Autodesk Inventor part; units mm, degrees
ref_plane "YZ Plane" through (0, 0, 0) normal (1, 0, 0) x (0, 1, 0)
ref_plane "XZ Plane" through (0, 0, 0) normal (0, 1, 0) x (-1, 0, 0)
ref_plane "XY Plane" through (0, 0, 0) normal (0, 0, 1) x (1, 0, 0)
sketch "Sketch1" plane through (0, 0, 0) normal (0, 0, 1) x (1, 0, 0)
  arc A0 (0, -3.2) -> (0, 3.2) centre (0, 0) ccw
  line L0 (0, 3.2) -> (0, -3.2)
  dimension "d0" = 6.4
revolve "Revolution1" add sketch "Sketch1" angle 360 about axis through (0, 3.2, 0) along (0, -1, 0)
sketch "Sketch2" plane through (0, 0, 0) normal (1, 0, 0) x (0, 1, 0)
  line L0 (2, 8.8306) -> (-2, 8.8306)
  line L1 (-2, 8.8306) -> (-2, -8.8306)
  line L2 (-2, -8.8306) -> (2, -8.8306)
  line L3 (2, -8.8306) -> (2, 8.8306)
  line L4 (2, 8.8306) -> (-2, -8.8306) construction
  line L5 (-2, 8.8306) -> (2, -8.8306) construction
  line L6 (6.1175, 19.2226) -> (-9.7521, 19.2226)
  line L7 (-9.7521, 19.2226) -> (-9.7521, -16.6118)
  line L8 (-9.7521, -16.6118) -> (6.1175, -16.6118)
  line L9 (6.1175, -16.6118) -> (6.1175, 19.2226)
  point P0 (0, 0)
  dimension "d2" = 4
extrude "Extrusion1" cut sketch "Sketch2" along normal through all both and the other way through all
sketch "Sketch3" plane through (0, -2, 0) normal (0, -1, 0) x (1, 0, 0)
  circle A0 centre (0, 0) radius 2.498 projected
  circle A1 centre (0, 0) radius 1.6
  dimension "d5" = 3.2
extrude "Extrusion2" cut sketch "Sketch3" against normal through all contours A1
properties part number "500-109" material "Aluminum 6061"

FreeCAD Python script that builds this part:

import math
import FreeCAD as App
import Part
import Sketcher
from FreeCAD import Vector

doc = App.newDocument("Part")
body = doc.addObject("PartDesign::Body", "Body")

sketch1 = body.newObject("Sketcher::SketchObject", "Sketch")
sketch1.AttachmentSupport = (doc.getObject("XY_Plane"), [""])
sketch1.MapMode = "FlatFace"
sketch1.addGeometry([
    Part.LineSegment(Vector(0, 3.2, 0), Vector(0, -3.2, 0)),
    Part.ArcOfCircle(Part.Circle(Vector(0, 0, 0), Vector(0, 0, 1), 3.2), math.radians(-90), math.radians(90)),
], False)
sketch1.addConstraint([
    Sketcher.Constraint("Coincident", 0, 1, 1, 2),
    Sketcher.Constraint("Coincident", 1, 1, 0, 2),
    Sketcher.Constraint("Vertical", 0),
    Sketcher.Constraint("Coincident", 1, 3, -1, 1),
    Sketcher.Constraint("PointOnObject", 0, 1, -2),
    Sketcher.Constraint("Radius", 1, 3.2),
])
revolution = body.newObject("PartDesign::Revolution", "Revolution")
revolution.Profile = sketch1
revolution.ReferenceAxis = (sketch1, ["V_Axis"])
revolution.Angle = 360

sketch2 = body.newObject("Sketcher::SketchObject", "Sketch001")
sketch2.AttachmentSupport = (doc.getObject("YZ_Plane"), [""])
sketch2.MapMode = "FlatFace"
sketch2.addGeometry([
    Part.LineSegment(Vector(6.1175, -16.6118, 0), Vector(6.1175, 19.2226, 0)),
    Part.LineSegment(Vector(6.1175, 19.2226, 0), Vector(-9.7521, 19.2226, 0)),
    Part.LineSegment(Vector(-9.7521, 19.2226, 0), Vector(-9.7521, -16.6118, 0)),
    Part.LineSegment(Vector(-9.7521, -16.6118, 0), Vector(6.1175, -16.6118, 0)),
    Part.LineSegment(Vector(-2, 8.8306, 0), Vector(2, 8.8306, 0)),
    Part.LineSegment(Vector(2, 8.8306, 0), Vector(2, -8.8306, 0)),
    Part.LineSegment(Vector(2, -8.8306, 0), Vector(-2, -8.8306, 0)),
    Part.LineSegment(Vector(-2, -8.8306, 0), Vector(-2, 8.8306, 0)),
], False)
sketch2.addConstraint([
    Sketcher.Constraint("Coincident", 0, 2, 1, 1),
    Sketcher.Constraint("Coincident", 1, 2, 2, 1),
    Sketcher.Constraint("Coincident", 2, 2, 3, 1),
    Sketcher.Constraint("Coincident", 3, 2, 0, 1),
    Sketcher.Constraint("Coincident", 4, 2, 5, 1),
    Sketcher.Constraint("Coincident", 5, 2, 6, 1),
    Sketcher.Constraint("Coincident", 6, 2, 7, 1),
    Sketcher.Constraint("Coincident", 7, 2, 4, 1),
    Sketcher.Constraint("Vertical", 0),
    Sketcher.Constraint("Horizontal", 1),
    Sketcher.Constraint("Vertical", 2),
    Sketcher.Constraint("Horizontal", 3),
    Sketcher.Constraint("Horizontal", 4),
    Sketcher.Constraint("Vertical", 5),
    Sketcher.Constraint("Horizontal", 6),
    Sketcher.Constraint("Vertical", 7),
    Sketcher.Constraint("Symmetric", 4, 2, 6, 2, -1, 1),
    Sketcher.Constraint("DistanceX", 4, 1, 4, 2, 4.0),
    Sketcher.Constraint("DistanceX", 1, 2, 1, 1, 15.8696),
    Sketcher.Constraint("DistanceY", 0, 1, 0, 2, 35.8344),
    Sketcher.Constraint("DistanceY", 5, 2, 5, 1, 17.6612),
    Sketcher.Constraint("DistanceX", 1, 2, -1, 1, 9.752),
    Sketcher.Constraint("DistanceY", 4, 2, 0, 2, 10.392),
])
pocket1 = body.newObject("PartDesign::Pocket", "Pocket")
pocket1.Profile = sketch2
pocket1.Type = "ThroughAll"
pocket1.Midplane = True

sketch3 = body.newObject("Sketcher::SketchObject", "Sketch002")
sketch3.AttachmentSupport = (doc.getObject("XZ_Plane"), [""])
sketch3.MapMode = "FlatFace"
sketch3.AttachmentOffset = App.Placement(Vector(0, 0, 2), App.Rotation())
sketch3.addGeometry(Part.Circle(Vector(0, 0, 0), Vector(0, 0, 1), 1.6), False)
sketch3.addConstraint([
    Sketcher.Constraint("Coincident", 0, 3, -1, 1),
    Sketcher.Constraint("Diameter", 0, 3.2),
])
pocket2 = body.newObject("PartDesign::Pocket", "Pocket001")
pocket2.Profile = sketch3
pocket2.Type = "ThroughAll"

doc.recompute()
